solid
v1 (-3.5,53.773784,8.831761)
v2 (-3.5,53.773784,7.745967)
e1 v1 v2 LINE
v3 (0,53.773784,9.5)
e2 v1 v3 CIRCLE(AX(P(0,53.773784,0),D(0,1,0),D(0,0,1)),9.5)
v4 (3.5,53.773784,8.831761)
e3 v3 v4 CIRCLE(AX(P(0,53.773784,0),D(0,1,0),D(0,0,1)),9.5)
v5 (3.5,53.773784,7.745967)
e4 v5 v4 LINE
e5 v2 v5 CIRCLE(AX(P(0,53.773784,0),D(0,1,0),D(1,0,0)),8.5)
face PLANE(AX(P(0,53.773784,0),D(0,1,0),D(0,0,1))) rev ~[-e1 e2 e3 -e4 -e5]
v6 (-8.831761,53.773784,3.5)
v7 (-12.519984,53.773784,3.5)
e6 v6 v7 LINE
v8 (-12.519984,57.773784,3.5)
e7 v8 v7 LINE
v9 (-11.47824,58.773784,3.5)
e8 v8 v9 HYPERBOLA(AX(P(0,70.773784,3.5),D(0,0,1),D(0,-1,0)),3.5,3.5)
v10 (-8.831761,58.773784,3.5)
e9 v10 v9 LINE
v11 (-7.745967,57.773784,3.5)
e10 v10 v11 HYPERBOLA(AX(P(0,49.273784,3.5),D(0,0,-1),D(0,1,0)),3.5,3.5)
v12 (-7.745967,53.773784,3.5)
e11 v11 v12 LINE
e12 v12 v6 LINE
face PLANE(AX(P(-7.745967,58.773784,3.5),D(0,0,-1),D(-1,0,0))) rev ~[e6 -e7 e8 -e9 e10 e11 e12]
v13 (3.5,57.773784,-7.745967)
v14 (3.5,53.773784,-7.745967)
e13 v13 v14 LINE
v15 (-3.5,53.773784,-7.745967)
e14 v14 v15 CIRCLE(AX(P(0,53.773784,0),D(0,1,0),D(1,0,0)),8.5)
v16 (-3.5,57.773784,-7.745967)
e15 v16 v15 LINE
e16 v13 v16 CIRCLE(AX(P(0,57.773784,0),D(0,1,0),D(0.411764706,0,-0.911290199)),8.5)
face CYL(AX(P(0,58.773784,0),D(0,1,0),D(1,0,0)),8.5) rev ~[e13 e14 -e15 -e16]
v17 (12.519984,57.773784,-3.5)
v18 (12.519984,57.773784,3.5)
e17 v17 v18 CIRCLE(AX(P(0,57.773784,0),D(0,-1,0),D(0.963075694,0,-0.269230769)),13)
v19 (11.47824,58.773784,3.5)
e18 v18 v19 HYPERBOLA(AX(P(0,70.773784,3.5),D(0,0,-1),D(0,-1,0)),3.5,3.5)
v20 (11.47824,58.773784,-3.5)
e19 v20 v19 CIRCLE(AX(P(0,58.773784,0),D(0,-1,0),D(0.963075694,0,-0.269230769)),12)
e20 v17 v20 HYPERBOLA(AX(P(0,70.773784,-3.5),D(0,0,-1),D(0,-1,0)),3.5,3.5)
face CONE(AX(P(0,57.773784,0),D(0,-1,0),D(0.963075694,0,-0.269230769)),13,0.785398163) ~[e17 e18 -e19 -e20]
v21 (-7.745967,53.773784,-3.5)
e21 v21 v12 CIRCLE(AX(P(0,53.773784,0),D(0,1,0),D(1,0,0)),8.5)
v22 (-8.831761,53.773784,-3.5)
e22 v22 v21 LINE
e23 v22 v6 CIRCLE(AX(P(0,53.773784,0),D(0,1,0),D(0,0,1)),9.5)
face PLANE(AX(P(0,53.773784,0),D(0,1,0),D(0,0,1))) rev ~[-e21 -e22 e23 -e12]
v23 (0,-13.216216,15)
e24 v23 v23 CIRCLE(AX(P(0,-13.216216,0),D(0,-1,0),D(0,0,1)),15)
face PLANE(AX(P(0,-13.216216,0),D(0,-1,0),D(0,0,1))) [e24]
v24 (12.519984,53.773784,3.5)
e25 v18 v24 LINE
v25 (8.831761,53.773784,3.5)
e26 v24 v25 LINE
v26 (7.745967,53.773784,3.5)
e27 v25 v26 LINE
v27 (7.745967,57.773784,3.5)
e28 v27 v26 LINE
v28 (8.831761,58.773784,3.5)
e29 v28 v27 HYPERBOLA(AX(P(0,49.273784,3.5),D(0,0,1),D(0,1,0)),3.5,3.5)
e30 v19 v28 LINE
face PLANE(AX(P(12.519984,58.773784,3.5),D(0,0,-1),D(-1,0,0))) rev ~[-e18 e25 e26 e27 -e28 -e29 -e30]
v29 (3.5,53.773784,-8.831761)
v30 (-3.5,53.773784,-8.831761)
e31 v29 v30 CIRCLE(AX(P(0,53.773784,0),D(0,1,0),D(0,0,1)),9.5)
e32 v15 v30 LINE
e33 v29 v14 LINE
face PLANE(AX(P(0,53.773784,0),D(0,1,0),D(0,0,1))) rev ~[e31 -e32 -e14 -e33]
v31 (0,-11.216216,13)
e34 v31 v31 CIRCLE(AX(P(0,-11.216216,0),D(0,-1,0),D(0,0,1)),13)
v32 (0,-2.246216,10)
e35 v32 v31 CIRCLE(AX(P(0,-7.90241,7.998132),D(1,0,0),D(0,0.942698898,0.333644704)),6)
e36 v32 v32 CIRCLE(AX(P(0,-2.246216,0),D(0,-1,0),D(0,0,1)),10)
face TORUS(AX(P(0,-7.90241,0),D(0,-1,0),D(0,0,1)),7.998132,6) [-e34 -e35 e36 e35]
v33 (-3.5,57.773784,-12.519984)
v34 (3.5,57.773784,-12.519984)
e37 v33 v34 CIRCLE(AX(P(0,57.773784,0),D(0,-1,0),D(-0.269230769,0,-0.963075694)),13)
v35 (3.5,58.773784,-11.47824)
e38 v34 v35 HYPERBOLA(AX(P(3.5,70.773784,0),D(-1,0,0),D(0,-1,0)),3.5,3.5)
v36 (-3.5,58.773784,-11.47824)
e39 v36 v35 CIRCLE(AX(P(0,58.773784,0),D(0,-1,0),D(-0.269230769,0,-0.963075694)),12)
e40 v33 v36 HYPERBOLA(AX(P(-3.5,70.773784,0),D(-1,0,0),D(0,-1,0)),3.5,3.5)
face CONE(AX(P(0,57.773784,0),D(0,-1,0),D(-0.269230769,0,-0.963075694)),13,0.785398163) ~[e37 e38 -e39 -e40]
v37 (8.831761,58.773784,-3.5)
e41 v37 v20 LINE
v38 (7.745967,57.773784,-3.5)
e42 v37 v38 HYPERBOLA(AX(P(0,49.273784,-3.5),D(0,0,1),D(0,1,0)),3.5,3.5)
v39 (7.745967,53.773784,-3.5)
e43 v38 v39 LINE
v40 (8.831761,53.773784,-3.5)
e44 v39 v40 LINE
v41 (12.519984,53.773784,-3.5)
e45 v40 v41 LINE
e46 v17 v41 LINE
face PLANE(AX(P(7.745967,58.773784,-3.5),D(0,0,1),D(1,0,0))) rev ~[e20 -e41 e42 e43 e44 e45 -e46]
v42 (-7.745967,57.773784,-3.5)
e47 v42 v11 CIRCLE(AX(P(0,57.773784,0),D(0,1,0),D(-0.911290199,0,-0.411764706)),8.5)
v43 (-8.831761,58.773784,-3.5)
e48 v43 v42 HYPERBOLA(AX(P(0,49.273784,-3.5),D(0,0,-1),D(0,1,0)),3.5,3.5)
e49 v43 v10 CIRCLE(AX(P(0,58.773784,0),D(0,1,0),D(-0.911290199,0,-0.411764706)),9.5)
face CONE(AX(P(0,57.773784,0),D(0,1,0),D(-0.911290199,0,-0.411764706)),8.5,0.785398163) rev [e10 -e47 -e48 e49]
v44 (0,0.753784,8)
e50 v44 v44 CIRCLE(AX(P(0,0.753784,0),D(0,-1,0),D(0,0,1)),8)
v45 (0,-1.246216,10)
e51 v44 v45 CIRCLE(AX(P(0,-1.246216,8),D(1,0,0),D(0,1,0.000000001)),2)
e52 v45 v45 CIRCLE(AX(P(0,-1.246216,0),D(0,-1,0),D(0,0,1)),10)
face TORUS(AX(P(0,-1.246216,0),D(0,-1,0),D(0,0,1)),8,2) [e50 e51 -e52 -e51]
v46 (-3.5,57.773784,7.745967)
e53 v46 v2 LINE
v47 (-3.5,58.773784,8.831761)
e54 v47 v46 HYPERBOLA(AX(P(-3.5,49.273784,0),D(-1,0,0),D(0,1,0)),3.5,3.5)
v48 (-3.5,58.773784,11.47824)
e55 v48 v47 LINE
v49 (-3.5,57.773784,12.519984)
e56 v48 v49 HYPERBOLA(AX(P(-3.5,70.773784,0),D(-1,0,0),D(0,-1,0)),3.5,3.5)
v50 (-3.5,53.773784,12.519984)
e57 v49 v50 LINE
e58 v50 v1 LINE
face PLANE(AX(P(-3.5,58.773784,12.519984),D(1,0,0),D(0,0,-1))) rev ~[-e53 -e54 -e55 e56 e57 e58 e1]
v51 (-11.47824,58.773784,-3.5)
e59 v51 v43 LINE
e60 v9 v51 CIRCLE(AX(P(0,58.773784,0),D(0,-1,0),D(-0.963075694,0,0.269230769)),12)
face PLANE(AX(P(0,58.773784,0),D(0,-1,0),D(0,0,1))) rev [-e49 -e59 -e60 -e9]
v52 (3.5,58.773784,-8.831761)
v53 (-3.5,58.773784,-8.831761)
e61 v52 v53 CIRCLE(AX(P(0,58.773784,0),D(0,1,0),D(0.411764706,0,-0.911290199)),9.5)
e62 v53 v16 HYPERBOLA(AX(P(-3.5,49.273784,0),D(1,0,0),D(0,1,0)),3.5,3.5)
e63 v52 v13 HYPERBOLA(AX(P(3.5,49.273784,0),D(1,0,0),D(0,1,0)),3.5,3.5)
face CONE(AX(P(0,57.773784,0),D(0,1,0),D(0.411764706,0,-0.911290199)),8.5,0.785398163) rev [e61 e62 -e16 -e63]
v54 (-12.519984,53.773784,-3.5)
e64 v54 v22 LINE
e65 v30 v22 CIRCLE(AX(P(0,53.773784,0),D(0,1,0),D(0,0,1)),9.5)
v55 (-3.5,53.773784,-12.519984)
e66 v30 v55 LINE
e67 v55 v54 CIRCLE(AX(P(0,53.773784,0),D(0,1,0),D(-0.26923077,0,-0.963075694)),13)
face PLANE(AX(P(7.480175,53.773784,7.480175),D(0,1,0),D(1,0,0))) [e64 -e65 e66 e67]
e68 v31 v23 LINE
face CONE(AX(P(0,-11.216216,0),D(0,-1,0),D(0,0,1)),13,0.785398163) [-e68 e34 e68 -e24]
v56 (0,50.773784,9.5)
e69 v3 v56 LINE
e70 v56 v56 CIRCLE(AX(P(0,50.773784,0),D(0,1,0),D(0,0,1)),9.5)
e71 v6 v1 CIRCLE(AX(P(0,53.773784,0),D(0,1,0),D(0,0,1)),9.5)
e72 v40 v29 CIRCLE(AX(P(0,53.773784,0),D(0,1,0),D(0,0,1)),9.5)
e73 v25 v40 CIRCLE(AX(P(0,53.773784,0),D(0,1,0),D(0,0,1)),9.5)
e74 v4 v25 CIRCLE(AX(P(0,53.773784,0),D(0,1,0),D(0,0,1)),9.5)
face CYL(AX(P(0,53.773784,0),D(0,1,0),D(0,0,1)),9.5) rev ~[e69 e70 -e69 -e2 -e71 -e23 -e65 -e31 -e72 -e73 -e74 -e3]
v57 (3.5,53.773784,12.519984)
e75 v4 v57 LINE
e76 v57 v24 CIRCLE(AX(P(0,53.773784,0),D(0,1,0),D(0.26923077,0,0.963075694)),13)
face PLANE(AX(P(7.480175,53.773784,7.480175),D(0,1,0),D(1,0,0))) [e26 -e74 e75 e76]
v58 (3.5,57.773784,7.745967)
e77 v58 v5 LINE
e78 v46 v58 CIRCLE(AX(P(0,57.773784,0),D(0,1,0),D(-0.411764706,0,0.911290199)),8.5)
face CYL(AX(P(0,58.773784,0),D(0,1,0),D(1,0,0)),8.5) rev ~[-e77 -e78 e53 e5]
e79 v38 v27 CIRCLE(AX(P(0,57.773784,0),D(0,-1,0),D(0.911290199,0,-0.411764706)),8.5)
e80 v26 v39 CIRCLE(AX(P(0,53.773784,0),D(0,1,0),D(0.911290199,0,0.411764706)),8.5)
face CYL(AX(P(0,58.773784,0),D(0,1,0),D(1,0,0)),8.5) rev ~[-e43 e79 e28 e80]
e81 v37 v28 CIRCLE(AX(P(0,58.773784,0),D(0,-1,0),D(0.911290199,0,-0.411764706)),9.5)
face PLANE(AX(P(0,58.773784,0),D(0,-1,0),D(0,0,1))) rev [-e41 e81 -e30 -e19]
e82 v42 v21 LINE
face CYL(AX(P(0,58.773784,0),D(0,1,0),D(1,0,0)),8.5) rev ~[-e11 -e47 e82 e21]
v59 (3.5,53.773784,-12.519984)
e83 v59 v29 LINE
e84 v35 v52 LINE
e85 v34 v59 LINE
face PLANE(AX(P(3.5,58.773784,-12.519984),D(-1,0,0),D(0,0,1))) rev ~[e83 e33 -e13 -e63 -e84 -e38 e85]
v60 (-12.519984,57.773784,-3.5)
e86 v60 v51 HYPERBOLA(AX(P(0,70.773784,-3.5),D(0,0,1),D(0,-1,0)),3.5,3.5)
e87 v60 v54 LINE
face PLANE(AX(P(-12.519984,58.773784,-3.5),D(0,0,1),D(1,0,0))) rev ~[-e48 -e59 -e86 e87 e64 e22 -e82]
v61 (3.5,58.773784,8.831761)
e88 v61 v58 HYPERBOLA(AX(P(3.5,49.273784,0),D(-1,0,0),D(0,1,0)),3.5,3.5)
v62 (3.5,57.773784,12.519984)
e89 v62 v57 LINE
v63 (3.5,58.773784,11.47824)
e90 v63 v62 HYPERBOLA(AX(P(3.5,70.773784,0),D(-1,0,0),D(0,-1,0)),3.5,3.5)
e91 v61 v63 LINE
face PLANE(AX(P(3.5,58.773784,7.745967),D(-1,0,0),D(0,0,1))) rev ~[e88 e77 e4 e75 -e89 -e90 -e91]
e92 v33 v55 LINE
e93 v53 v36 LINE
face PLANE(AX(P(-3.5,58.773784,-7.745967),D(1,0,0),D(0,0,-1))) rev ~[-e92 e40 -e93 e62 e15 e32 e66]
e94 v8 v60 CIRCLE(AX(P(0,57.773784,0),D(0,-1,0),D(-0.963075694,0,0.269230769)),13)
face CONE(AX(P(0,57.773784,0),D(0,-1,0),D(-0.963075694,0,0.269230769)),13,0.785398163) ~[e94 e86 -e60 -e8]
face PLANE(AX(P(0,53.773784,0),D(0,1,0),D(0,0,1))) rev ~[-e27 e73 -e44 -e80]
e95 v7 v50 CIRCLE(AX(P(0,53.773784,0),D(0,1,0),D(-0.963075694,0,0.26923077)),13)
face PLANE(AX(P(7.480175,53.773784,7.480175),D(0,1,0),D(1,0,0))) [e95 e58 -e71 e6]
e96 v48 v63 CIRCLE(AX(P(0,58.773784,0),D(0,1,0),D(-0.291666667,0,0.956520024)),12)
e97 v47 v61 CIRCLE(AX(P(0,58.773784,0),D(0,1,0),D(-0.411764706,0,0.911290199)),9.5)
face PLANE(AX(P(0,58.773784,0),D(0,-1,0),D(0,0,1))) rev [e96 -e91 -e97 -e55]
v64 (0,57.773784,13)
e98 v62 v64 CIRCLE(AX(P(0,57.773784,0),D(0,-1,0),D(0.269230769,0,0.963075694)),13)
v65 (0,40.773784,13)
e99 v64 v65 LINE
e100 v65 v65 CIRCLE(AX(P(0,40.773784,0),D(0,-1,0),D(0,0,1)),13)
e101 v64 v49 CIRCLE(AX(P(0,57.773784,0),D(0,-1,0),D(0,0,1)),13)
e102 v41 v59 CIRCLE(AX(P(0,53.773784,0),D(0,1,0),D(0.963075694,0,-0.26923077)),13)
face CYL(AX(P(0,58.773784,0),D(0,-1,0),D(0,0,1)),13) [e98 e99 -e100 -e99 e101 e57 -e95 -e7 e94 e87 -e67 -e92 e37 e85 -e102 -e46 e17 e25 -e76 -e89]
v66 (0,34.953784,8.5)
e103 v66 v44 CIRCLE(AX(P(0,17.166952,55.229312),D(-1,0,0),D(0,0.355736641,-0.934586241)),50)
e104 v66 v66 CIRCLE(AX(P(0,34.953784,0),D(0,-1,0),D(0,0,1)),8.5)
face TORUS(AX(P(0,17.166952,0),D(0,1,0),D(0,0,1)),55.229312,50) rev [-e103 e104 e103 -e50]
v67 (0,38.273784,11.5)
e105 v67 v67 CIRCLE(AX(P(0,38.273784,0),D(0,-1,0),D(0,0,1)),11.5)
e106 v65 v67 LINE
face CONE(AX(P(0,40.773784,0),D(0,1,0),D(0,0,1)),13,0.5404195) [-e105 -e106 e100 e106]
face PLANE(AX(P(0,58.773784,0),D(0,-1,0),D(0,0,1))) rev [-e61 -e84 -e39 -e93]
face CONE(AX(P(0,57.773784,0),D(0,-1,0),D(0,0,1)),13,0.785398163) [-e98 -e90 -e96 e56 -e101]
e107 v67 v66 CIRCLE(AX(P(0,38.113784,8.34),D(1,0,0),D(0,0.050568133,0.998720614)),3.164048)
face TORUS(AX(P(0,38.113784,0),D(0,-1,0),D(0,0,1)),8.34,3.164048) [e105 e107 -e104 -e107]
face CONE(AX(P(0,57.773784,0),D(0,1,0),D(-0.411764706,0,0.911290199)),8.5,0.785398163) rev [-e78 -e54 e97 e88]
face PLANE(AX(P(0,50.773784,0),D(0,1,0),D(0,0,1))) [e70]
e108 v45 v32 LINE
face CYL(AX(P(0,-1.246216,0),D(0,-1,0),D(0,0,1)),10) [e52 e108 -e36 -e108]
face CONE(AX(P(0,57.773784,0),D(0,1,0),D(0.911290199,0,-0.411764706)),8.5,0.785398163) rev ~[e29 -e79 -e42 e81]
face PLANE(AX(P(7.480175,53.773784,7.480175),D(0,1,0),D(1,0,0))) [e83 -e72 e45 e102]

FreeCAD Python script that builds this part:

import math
import FreeCAD as App
import Part
import Sketcher
from FreeCAD import Vector
Q = App.Units.Quantity


def edges_at(feature, points):
    """Names of the edges that pass closest to the given points."""
    edges = feature.Shape.Edges
    near = lambda p: min(range(len(edges)), key=lambda i: edges[i].distToShape(Part.Vertex(*p))[0])
    return sorted({f"Edge{near(p) + 1}" for p in points})

doc = App.newDocument("Part")
body = doc.addObject("PartDesign::Body", "Body")

sketch1 = doc.addObject("Sketcher::SketchObject", "Sketch")
body.addObject(sketch1)
sketch1.AttachmentSupport = (doc.XY_Plane, [""])
sketch1.MapMode = "FlatFace"
sketch1.addGeometry([
    Part.LineSegment(Vector(0, -13.2, 0), Vector(0, 58.8, 0)),
    Part.LineSegment(Vector(0, 58.8, 0), Vector(-13, 58.8, 0)),
    Part.LineSegment(Vector(-13, 58.8, 0), Vector(-13, 40.8, 0)),
    Part.LineSegment(Vector(-13, 40.8, 0), Vector(-11.5, 38.3, 0)),
    Part.ArcOfCircle(Part.Circle(Vector(-8.3, 38.1, 0), Vector(0, 0, 1), 3.2), math.radians(177), math.radians(267)),
    Part.ArcOfCircle(Part.Circle(Vector(-55.2, 17.2, 0), Vector(0, 0, 1), 50), math.radians(-19), math.radians(21)),
    Part.ArcOfCircle(Part.Circle(Vector(-8, -1.2, 0), Vector(0, 0, 1), 2), math.radians(90), math.radians(180)),
    Part.LineSegment(Vector(-10, -1.2, 0), Vector(-10, -2.2, 0)),
    Part.ArcOfCircle(Part.Circle(Vector(-8, -7.9, 0), Vector(0, 0, 1), 6), math.radians(109), math.radians(214)),
    Part.LineSegment(Vector(-13, -11.2, 0), Vector(-15, -13.2, 0)),
    Part.LineSegment(Vector(-15, -13.2, 0), Vector(0, -13.2, 0)),
], False)
sketch1.addConstraint([
    Sketcher.Constraint("Coincident", 0, 2, 1, 1),
    Sketcher.Constraint("Coincident", 1, 2, 2, 1),
    Sketcher.Constraint("Coincident", 2, 2, 3, 1),
    Sketcher.Constraint("Coincident", 3, 2, 4, 1),
    Sketcher.Constraint("Coincident", 4, 2, 5, 2),
    Sketcher.Constraint("Coincident", 5, 1, 6, 1),
    Sketcher.Constraint("Tangent", 6, 2, 7, 1),
    Sketcher.Constraint("Coincident", 7, 2, 8, 1),
    Sketcher.Constraint("Coincident", 8, 2, 9, 1),
    Sketcher.Constraint("Coincident", 9, 2, 10, 1),
    Sketcher.Constraint("Coincident", 10, 2, 0, 1),
    Sketcher.Constraint("Vertical", 0),
    Sketcher.Constraint("Horizontal", 1),
    Sketcher.Constraint("Vertical", 2),
    Sketcher.Constraint("Vertical", 7),
    Sketcher.Constraint("Horizontal", 10),
    Sketcher.Constraint("PointOnObject", 0, 2, -2),
    Sketcher.Constraint("Vertical", 6, 3, 5, 1),
    Sketcher.Constraint("Vertical", 2, 2, 8, 2),
    Sketcher.Constraint("Radius", 5, Q("50 mm")),
    Sketcher.Constraint("Radius", 6, Q("2 mm")),
    Sketcher.Constraint("Radius", 8, Q("6 mm")),
    Sketcher.Constraint("DistanceX", 1, 2, 1, 1, Q("13 mm")),
    Sketcher.Constraint("DistanceX", 10, 1, 10, 2, Q("15 mm")),
    Sketcher.Constraint("DistanceY", 2, 2, 2, 1, Q("18 mm")),
    Sketcher.Constraint("DistanceY", 7, 2, 7, 1, Q("1 mm")),
    Sketcher.Constraint("Angle", 9, Q("-135 deg")),
    Sketcher.Constraint("DistanceX", 6, 3, -1, 1, Q("8 mm")),
    Sketcher.Constraint("DistanceX", 3, 2, 4, 2, Q("3 mm")),
    Sketcher.Constraint("DistanceY", 0, 1, 0, 2, Q("71.99 mm")),
    Sketcher.Constraint("DistanceX", 3, 2, -1, 1, Q("11.5 mm")),
    Sketcher.Constraint("DistanceY", 3, 2, 2, 2, Q("2.5 mm")),
    Sketcher.Constraint("DistanceY", 5, 1, 4, 2, Q("34.2 mm")),
    Sketcher.Constraint("DistanceX", 4, 3, -1, 1, Q("8.34 mm")),
    Sketcher.Constraint("Radius", 4, Q("3.164048 mm")),
    Sketcher.Constraint("DistanceY", -1, 1, 5, 3, Q("17.166952 mm")),
])
revolution = doc.addObject("PartDesign::Revolution", "Revolution")
body.addObject(revolution)
revolution.Profile = sketch1
revolution.ReferenceAxis = (sketch1, ["V_Axis"])
revolution.Angle = 360

sketch2 = doc.addObject("Sketcher::SketchObject", "Sketch001")
body.addObject(sketch2)
sketch2.AttachmentSupport = (doc.XZ_Plane, [""])
sketch2.MapMode = "FlatFace"
sketch2.AttachmentOffset = App.Placement(Vector(0, 0, -58.773784), App.Rotation())
sketch2.addGeometry([
    Part.LineSegment(Vector(-3.5, -7.7, 0), Vector(-3.5, -12.5, 0)),
    Part.ArcOfCircle(Part.Circle(Vector(0, 0, 0), Vector(0, 0, 1), 13), math.radians(-164), math.radians(-106)),
    Part.LineSegment(Vector(-12.5, -3.5, 0), Vector(-7.7, -3.5, 0)),
    Part.ArcOfCircle(Part.Circle(Vector(0, 0, 0), Vector(0, 0, 1), 8.5), math.radians(-156), math.radians(-114)),
    Part.ArcOfCircle(Part.Circle(Vector(0, 0, 0), Vector(0, 0, 1), 13), math.radians(106), math.radians(164)),
    Part.LineSegment(Vector(-3.5, 12.5, 0), Vector(-3.5, 7.7, 0)),
    Part.ArcOfCircle(Part.Circle(Vector(0, 0, 0), Vector(0, 0, 1), 8.5), math.radians(114), math.radians(156)),
    Part.LineSegment(Vector(-7.7, 3.5, 0), Vector(-12.5, 3.5, 0)),
    Part.ArcOfCircle(Part.Circle(Vector(0, 0, 0), Vector(0, 0, 1), 13), math.radians(16), math.radians(74)),
    Part.LineSegment(Vector(12.5, 3.5, 0), Vector(7.7, 3.5, 0)),
    Part.ArcOfCircle(Part.Circle(Vector(0, 0, 0), Vector(0, 0, 1), 8.5), math.radians(24), math.radians(66)),
    Part.LineSegment(Vector(3.5, 7.7, 0), Vector(3.5, 12.5, 0)),
    Part.ArcOfCircle(Part.Circle(Vector(0, 0, 0), Vector(0, 0, 1), 8.5), math.radians(-66), math.radians(-24)),
    Part.LineSegment(Vector(7.7, -3.5, 0), Vector(12.5, -3.5, 0)),
    Part.ArcOfCircle(Part.Circle(Vector(0, 0, 0), Vector(0, 0, 1), 13), math.radians(-74), math.radians(-16)),
    Part.LineSegment(Vector(3.5, -12.5, 0), Vector(3.5, -7.7, 0)),
], False)
sketch2.addConstraint([
    Sketcher.Constraint("Coincident", 0, 2, 1, 2),
    Sketcher.Constraint("Coincident", 1, 1, 2, 1),
    Sketcher.Constraint("Coincident", 2, 2, 3, 1),
    Sketcher.Constraint("Coincident", 3, 2, 0, 1),
    Sketcher.Constraint("Coincident", 4, 1, 5, 1),
    Sketcher.Constraint("Coincident", 5, 2, 6, 1),
    Sketcher.Constraint("Coincident", 6, 2, 7, 1),
    Sketcher.Constraint("Coincident", 7, 2, 4, 2),
    Sketcher.Constraint("Coincident", 8, 1, 9, 1),
    Sketcher.Constraint("Coincident", 9, 2, 10, 1),
    Sketcher.Constraint("Coincident", 10, 2, 11, 1),
    Sketcher.Constraint("Coincident", 11, 2, 8, 2),
    Sketcher.Constraint("Coincident", 12, 2, 13, 1),
    Sketcher.Constraint("Coincident", 13, 2, 14, 2),
    Sketcher.Constraint("Coincident", 14, 1, 15, 1),
    Sketcher.Constraint("Coincident", 15, 2, 12, 1),
    Sketcher.Constraint("Vertical", 0),
    Sketcher.Constraint("Horizontal", 2),
    Sketcher.Constraint("Vertical", 5),
    Sketcher.Constraint("Horizontal", 7),
    Sketcher.Constraint("Horizontal", 9),
    Sketcher.Constraint("Vertical", 11),
    Sketcher.Constraint("Horizontal", 13),
    Sketcher.Constraint("Vertical", 15),
    Sketcher.Constraint("Coincident", 1, 3, -1, 1),
    Sketcher.Constraint("Coincident", 3, 3, -1, 1),
    Sketcher.Constraint("Coincident", 4, 3, -1, 1),
    Sketcher.Constraint("Coincident", 6, 3, -1, 1),
    Sketcher.Constraint("Coincident", 8, 3, -1, 1),
    Sketcher.Constraint("Coincident", 10, 3, -1, 1),
    Sketcher.Constraint("Coincident", 12, 3, -1, 1),
    Sketcher.Constraint("Coincident", 14, 3, -1, 1),
    Sketcher.Constraint("Equal", 1, 4),
    Sketcher.Constraint("Equal", 3, 6),
    Sketcher.Constraint("Equal", 4, 8),
    Sketcher.Constraint("Equal", 6, 10),
    Sketcher.Constraint("Equal", 10, 12),
    Sketcher.Constraint("Equal", 8, 14),
    Sketcher.Constraint("Horizontal", 7, 2, 8, 1),
    Sketcher.Constraint("Horizontal", 5, 2, 10, 2),
    Sketcher.Constraint("Horizontal", 2, 2, 12, 2),
    Sketcher.Constraint("Horizontal", 0, 2, 14, 1),
    Sketcher.Constraint("Vertical", 3, 2, 4, 1),
    Sketcher.Constraint("Vertical", 2, 2, 6, 2),
    Sketcher.Constraint("Equal", 13, 0),
    Sketcher.Constraint("Radius", 1, Q("13 mm")),
    Sketcher.Constraint("Radius", 3, Q("8.5 mm")),
    Sketcher.Constraint("DistanceY", 2, 2, 6, 2, Q("7 mm")),
])
pocket1 = doc.addObject("PartDesign::Pocket", "Pocket")
body.addObject(pocket1)
pocket1.Profile = sketch2
pocket1.Length = 5
pocket1.Reversed = True

sketch3 = doc.addObject("Sketcher::SketchObject", "Sketch002")
body.addObject(sketch3)
sketch3.AttachmentSupport = (doc.XZ_Plane, [""])
sketch3.MapMode = "FlatFace"
sketch3.AttachmentOffset = App.Placement(Vector(0, 0, -58.773784), App.Rotation())
sketch3.addGeometry(Part.Circle(Vector(0, 0, 0), Vector(0, 0, 1), 8), False)
sketch3.addConstraint([
    Sketcher.Constraint("Coincident", 0, 3, -1, 1),
    Sketcher.Constraint("Diameter", 0, Q("17 mm")),
])
pocket2 = doc.addObject("PartDesign::Pocket", "Pocket001")
body.addObject(pocket2)
pocket2.Profile = sketch3
pocket2.Length = 5
pocket2.Reversed = True

sketch4 = doc.addObject("Sketcher::SketchObject", "Sketch003")
body.addObject(sketch4)
sketch4.AttachmentSupport = (doc.XZ_Plane, [""])
sketch4.MapMode = "FlatFace"
sketch4.AttachmentOffset = App.Placement(Vector(0, 0, -53.773784), App.Rotation())
sketch4.addGeometry(Part.Circle(Vector(0, 0, 0), Vector(0, 0, 1), 10), False)
sketch4.addConstraint([
    Sketcher.Constraint("Coincident", 0, 3, -1, 1),
    Sketcher.Constraint("Diameter", 0, Q("19 mm")),
])
pocket3 = doc.addObject("PartDesign::Pocket", "Pocket002")
body.addObject(pocket3)
pocket3.Profile = sketch4
pocket3.Length = 3
pocket3.Reversed = True
doc.recompute()

chamfer = doc.addObject("PartDesign::Chamfer", "Chamfer")
body.addObject(chamfer)
chamfer.Base = (pocket3, edges_at(pocket3, [
    (13, 58.774, 0),
    (0, 58.774, -13),
    (-13, 58.774, 0),
    (1.766, 58.774, 12.879),
    (8.5, 58.774, 0),
    (0, 58.774, -8.5),
    (-8.5, 58.774, 0),
    (0, 58.774, 8.5),
]))
chamfer.Size = 1

doc.recompute()
